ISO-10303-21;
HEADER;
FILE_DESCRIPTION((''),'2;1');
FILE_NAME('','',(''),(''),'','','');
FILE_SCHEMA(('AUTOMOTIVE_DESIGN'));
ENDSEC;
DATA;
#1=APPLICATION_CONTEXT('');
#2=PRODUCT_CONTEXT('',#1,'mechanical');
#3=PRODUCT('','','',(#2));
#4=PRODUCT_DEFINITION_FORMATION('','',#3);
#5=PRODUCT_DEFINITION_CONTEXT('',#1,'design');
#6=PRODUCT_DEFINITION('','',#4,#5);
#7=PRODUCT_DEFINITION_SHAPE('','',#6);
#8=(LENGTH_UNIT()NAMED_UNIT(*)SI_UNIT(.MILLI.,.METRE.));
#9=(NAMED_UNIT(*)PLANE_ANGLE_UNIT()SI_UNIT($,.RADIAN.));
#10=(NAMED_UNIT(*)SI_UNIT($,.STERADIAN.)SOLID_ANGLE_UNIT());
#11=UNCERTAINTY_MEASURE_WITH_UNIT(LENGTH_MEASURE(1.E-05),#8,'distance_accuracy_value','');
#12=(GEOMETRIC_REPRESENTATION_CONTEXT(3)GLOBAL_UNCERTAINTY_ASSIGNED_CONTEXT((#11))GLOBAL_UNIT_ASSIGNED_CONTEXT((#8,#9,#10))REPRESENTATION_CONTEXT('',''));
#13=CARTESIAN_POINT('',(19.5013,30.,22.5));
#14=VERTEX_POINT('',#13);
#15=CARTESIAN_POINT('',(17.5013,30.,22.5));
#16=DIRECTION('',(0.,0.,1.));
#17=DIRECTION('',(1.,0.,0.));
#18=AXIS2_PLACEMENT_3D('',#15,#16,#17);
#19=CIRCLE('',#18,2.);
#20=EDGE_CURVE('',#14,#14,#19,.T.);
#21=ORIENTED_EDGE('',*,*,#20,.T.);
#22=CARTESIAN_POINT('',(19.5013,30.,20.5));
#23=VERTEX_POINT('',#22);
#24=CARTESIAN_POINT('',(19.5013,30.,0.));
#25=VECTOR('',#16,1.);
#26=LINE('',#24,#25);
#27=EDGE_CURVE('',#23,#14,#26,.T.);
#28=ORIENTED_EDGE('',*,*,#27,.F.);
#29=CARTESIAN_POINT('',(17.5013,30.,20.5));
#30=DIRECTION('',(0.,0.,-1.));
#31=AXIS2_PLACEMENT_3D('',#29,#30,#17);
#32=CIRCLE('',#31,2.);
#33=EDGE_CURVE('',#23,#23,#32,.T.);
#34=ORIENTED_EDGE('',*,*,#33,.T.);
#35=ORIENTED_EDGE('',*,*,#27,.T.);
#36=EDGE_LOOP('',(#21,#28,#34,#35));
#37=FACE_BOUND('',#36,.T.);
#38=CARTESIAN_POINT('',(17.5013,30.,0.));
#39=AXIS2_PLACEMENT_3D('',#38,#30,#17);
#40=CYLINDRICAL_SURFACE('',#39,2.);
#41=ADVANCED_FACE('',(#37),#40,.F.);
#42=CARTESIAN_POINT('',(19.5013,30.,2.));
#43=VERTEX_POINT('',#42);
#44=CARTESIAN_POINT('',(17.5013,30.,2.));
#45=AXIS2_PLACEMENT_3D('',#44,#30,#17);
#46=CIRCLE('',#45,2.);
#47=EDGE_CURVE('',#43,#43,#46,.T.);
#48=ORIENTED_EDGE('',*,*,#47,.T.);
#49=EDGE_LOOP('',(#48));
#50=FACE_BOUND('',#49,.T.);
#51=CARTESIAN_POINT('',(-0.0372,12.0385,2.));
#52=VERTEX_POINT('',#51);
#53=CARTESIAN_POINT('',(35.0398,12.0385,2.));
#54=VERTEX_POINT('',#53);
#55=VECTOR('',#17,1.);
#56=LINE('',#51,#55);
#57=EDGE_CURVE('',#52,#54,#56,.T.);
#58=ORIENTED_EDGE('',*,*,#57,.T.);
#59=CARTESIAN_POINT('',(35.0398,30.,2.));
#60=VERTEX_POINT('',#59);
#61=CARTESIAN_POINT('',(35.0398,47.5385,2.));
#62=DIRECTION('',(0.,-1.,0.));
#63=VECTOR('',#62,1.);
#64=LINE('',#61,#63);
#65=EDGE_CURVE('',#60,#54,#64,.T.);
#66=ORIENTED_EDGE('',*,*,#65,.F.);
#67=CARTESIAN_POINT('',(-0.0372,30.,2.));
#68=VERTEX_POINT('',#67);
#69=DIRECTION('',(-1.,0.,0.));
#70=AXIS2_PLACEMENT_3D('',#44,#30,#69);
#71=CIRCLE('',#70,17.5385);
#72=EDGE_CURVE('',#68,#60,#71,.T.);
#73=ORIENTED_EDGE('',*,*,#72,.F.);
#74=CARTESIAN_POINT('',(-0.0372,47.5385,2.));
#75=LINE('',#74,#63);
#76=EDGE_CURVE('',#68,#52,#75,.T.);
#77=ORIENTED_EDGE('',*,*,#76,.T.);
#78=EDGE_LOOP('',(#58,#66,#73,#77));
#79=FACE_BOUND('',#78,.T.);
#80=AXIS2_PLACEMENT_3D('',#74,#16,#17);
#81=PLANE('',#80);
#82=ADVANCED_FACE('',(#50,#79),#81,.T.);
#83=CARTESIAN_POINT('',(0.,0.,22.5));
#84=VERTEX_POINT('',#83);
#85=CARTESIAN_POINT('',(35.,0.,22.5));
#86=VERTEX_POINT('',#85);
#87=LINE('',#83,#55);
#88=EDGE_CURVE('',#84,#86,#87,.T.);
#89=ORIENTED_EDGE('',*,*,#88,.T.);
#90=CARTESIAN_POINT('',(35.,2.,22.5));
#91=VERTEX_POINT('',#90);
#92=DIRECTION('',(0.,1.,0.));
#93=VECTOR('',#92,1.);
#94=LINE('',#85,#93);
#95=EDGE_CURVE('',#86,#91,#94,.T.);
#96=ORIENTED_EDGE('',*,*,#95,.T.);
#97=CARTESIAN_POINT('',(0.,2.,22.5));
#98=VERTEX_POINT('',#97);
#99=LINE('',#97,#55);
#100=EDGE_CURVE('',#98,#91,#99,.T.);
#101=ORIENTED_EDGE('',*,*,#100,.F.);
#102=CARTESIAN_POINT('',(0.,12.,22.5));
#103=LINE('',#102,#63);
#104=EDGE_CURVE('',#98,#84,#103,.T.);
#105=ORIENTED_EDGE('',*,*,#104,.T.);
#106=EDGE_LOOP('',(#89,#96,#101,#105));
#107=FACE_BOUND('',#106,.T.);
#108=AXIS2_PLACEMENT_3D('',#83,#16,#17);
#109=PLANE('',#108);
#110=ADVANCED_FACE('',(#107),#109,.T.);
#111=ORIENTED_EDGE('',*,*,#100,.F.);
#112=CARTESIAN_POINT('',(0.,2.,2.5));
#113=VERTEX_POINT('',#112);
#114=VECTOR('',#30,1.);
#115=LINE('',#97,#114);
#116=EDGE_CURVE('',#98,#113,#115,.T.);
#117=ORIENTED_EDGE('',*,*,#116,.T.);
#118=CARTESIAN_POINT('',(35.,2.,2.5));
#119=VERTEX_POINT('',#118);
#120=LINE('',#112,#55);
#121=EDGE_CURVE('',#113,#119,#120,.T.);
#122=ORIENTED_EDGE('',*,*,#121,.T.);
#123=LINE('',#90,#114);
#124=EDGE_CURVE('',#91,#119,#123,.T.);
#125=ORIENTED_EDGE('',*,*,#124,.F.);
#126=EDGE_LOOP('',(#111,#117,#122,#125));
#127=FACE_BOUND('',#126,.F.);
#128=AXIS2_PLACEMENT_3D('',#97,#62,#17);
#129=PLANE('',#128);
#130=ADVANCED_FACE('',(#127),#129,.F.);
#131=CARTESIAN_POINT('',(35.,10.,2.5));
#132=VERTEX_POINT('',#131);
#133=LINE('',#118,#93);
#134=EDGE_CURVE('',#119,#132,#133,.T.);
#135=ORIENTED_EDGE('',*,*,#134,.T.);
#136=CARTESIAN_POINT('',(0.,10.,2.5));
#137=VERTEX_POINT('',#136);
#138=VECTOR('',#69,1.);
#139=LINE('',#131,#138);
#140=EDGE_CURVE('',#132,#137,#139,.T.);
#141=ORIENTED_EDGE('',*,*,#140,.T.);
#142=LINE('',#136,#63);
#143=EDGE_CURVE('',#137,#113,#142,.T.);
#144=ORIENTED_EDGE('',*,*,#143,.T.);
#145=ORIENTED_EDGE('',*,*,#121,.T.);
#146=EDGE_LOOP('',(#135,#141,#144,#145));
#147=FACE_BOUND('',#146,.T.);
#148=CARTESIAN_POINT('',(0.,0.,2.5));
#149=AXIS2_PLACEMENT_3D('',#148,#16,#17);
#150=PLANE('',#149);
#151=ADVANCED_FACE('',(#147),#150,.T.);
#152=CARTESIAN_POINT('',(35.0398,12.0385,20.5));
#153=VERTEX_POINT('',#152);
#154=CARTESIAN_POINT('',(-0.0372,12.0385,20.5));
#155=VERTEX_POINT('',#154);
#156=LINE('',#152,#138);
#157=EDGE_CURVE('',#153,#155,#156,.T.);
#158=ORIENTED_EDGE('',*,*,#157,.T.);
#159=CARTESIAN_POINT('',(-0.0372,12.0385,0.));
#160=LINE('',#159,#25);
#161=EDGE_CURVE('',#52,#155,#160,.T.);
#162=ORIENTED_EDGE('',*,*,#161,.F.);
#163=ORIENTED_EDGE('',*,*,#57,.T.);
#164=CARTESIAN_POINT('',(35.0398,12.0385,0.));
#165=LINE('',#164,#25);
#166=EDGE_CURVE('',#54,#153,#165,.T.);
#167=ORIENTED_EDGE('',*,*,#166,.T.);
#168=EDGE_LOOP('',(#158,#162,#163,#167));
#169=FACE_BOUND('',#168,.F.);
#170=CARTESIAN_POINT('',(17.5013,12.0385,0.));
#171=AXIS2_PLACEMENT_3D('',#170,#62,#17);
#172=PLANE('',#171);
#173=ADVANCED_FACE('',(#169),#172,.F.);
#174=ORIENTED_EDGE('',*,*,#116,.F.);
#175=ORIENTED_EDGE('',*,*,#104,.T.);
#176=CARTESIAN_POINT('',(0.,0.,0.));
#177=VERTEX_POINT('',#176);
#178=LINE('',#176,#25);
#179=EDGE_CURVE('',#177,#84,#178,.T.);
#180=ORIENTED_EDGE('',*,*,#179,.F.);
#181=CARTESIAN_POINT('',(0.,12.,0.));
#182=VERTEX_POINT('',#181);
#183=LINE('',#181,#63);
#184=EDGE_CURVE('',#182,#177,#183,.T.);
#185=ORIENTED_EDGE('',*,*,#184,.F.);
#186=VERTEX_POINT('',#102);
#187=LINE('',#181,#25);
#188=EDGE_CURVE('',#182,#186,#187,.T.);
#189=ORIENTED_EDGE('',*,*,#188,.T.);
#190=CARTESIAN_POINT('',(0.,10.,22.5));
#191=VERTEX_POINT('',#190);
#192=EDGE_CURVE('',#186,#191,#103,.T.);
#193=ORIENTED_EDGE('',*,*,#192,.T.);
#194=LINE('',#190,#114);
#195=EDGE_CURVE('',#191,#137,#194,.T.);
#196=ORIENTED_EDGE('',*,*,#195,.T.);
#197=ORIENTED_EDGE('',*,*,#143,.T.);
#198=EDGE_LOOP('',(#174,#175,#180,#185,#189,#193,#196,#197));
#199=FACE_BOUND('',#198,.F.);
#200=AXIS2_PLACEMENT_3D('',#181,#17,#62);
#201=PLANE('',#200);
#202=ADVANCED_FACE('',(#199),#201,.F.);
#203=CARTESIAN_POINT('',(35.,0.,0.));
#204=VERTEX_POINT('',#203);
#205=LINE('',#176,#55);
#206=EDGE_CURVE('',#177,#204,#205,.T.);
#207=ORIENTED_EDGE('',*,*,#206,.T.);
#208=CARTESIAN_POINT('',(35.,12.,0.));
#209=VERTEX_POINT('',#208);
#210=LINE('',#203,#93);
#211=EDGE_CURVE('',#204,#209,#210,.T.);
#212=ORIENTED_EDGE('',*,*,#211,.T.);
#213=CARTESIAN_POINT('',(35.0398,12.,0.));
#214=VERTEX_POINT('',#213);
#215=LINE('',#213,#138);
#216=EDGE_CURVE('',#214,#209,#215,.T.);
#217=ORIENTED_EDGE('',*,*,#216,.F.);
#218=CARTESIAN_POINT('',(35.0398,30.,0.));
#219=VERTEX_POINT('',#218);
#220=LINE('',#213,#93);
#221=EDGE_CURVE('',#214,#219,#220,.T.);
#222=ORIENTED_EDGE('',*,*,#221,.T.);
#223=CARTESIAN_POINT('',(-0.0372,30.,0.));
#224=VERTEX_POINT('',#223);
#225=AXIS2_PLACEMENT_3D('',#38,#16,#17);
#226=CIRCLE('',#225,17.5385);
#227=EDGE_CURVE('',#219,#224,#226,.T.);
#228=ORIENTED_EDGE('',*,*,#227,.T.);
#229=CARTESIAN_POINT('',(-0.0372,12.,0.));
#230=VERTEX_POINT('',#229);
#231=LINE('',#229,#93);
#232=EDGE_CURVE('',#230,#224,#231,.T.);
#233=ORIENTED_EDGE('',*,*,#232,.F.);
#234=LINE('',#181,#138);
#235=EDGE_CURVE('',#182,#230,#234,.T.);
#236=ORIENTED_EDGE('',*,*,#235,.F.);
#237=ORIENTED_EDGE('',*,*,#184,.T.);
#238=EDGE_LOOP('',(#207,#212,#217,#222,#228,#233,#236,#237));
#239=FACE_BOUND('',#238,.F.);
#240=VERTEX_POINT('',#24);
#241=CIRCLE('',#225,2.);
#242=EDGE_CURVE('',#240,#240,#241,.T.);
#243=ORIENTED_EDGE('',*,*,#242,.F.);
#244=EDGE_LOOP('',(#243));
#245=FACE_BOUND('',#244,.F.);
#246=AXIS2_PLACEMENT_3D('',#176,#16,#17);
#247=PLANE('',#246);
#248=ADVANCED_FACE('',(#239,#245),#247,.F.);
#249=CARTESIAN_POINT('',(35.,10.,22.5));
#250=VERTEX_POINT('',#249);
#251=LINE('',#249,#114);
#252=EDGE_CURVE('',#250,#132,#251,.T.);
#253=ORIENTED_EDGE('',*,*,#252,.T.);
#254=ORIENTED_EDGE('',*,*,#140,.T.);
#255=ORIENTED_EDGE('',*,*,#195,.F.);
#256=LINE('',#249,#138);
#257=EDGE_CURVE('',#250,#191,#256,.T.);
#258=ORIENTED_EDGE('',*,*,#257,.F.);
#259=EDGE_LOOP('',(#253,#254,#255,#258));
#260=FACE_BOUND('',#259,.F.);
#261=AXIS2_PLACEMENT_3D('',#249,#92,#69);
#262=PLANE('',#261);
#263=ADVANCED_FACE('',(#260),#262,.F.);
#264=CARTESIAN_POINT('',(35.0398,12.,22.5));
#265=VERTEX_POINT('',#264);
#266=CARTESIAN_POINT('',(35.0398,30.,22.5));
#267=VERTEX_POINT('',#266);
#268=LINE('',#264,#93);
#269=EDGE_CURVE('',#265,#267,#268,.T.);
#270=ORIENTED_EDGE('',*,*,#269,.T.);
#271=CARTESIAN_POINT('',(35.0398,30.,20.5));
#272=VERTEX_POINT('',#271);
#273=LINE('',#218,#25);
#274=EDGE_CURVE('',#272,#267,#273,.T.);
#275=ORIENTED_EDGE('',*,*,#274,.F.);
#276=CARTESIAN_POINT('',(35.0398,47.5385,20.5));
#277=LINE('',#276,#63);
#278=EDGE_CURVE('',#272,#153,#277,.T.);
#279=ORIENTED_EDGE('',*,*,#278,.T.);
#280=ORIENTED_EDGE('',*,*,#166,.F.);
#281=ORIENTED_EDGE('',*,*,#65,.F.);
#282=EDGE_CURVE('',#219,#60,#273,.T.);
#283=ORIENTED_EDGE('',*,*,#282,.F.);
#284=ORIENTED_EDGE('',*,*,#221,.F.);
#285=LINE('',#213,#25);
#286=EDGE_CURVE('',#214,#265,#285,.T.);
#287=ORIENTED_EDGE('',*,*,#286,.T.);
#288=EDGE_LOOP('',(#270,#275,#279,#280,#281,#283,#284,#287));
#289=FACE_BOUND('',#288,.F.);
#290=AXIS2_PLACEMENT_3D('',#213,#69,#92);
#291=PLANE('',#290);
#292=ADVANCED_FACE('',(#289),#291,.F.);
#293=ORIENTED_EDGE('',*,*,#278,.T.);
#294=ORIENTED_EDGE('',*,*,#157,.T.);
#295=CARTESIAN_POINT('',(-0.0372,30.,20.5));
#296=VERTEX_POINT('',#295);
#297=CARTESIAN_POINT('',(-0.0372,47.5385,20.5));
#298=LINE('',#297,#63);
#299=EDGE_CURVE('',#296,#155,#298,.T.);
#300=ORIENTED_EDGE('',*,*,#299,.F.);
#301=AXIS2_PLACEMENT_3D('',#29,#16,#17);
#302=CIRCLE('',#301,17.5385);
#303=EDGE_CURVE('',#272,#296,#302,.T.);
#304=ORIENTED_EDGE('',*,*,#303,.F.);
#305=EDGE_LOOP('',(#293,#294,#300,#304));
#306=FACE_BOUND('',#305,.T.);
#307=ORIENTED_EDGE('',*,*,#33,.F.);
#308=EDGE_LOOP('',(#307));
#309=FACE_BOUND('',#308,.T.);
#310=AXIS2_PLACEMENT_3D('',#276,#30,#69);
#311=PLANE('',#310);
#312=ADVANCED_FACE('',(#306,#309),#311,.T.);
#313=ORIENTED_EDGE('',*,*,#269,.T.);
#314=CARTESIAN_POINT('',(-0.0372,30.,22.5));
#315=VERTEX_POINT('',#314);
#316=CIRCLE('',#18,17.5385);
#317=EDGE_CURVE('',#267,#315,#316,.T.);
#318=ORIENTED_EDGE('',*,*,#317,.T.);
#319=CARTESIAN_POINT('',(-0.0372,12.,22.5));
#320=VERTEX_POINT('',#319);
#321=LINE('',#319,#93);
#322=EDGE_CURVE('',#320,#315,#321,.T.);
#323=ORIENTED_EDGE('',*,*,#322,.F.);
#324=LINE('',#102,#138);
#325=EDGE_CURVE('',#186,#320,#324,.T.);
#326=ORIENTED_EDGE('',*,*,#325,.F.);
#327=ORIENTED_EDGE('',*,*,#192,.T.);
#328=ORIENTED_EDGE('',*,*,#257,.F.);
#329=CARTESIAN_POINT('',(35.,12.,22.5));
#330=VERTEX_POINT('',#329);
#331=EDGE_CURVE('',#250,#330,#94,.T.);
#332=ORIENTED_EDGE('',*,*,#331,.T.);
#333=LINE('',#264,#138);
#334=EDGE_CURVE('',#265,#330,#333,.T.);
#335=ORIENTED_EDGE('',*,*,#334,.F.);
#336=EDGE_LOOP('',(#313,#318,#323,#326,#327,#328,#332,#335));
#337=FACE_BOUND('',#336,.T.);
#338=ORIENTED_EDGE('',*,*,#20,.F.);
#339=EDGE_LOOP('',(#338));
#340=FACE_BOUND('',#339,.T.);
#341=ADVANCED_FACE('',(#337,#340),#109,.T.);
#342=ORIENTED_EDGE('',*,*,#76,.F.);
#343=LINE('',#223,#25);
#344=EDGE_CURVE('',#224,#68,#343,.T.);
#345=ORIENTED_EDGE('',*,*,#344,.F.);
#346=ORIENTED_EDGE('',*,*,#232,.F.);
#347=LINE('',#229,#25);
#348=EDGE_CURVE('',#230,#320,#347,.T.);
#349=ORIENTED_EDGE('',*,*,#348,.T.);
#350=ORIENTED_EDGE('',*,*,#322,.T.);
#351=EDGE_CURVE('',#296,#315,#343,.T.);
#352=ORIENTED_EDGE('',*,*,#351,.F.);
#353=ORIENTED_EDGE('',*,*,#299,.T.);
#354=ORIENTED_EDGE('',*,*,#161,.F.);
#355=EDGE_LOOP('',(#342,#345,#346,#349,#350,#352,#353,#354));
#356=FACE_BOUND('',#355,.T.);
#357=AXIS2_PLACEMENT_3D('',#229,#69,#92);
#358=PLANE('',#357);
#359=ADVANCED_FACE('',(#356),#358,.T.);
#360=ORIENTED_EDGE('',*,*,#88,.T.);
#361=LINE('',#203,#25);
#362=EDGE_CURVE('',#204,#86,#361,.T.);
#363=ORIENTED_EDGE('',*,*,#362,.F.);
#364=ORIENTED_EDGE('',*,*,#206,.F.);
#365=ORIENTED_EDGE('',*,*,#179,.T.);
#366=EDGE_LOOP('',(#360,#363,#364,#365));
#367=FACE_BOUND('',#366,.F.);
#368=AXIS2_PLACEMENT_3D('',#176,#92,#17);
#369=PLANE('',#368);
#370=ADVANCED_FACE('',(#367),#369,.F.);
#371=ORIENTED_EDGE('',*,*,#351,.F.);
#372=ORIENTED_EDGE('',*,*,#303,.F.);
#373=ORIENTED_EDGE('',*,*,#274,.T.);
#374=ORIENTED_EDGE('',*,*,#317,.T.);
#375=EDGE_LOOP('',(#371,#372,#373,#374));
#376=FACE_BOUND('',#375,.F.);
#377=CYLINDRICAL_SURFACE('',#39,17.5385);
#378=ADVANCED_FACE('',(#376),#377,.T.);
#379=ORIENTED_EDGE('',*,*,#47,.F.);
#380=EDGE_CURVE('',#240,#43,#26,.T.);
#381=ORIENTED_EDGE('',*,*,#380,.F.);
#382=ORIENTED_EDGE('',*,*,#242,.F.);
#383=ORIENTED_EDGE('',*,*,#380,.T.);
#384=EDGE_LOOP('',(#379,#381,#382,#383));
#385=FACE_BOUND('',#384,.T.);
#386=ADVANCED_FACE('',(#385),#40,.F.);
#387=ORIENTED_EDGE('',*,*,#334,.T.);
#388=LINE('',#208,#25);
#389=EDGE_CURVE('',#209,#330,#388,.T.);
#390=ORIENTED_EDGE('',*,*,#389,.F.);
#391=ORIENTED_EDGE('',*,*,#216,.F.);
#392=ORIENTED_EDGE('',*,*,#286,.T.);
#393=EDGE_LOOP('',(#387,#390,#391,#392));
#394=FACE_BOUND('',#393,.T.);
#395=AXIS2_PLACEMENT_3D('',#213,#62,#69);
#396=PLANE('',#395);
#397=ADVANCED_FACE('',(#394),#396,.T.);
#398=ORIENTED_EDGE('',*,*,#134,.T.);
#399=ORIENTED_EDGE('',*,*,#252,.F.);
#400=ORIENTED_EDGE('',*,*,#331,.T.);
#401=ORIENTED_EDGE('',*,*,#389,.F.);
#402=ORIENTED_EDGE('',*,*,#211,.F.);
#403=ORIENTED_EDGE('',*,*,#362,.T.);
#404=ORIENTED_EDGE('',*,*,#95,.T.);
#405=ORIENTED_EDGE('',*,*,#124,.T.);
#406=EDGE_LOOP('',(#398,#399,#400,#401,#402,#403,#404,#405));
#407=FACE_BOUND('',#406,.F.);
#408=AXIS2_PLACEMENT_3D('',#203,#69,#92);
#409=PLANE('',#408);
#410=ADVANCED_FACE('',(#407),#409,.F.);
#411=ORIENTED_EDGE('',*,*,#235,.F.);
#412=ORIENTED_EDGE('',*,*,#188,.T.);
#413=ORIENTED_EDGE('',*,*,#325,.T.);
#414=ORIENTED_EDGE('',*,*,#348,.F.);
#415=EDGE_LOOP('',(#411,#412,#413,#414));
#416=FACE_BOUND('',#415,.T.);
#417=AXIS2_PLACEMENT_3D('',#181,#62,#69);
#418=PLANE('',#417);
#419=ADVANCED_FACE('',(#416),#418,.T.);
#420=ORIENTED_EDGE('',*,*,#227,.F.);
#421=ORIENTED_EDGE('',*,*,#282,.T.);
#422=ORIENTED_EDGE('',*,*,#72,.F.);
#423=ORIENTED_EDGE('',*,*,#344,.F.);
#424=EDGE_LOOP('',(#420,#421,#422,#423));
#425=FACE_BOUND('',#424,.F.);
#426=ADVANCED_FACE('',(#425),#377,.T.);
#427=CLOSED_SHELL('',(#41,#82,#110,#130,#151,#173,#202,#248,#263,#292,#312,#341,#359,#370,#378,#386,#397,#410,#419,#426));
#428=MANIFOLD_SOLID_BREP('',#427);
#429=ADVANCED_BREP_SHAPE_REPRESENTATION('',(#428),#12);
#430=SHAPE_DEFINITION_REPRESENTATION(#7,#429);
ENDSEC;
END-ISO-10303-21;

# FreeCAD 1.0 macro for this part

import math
import FreeCAD as App
import Part
import Sketcher

doc = App.newDocument("Part")
body = doc.addObject("PartDesign::Body", "Body")

sketch1 = body.newObject("Sketcher::SketchObject", "Sketch")
sketch1.AttachmentSupport = (doc.getObject("XY_Plane"), [""])
sketch1.MapMode = "FlatFace"
sketch1.addGeometry([
    Part.LineSegment(App.Vector(0, 12, 0), App.Vector(0, 0, 0)),
    Part.LineSegment(App.Vector(0, 0, 0), App.Vector(35, 0, 0)),
    Part.LineSegment(App.Vector(35, 0, 0), App.Vector(35, 12, 0)),
    Part.LineSegment(App.Vector(35, 12, 0), App.Vector(35.04, 12, 0)),
    Part.LineSegment(App.Vector(35.04, 12, 0), App.Vector(35.04, 30, 0)),
    Part.ArcOfCircle(Part.Circle(App.Vector(17.501, 30, 0), App.Vector(0, 0, 1), 17.538), math.radians(0), math.radians(180)),
    Part.LineSegment(App.Vector(-0.037, 30, 0), App.Vector(-0.037, 12, 0)),
    Part.LineSegment(App.Vector(-0.037, 12, 0), App.Vector(0, 12, 0)),
    Part.Circle(App.Vector(17.501, 30, 0), App.Vector(0, 0, 1), 2),
], False)
sketch1.addConstraint([
    Sketcher.Constraint("Coincident", 0, 2, 1, 1),
    Sketcher.Constraint("Coincident", 1, 2, 2, 1),
    Sketcher.Constraint("Coincident", 2, 2, 3, 1),
    Sketcher.Constraint("Coincident", 3, 2, 4, 1),
    Sketcher.Constraint("Tangent", 4, 2, 5, 1),
    Sketcher.Constraint("Tangent", 5, 2, 6, 1),
    Sketcher.Constraint("Coincident", 6, 2, 7, 1),
    Sketcher.Constraint("Coincident", 7, 2, 0, 1),
    Sketcher.Constraint("Vertical", 0),
    Sketcher.Constraint("Horizontal", 1),
    Sketcher.Constraint("Vertical", 2),
    Sketcher.Constraint("Horizontal", 3),
    Sketcher.Constraint("Vertical", 4),
    Sketcher.Constraint("Vertical", 6),
    Sketcher.Constraint("Horizontal", 7),
    Sketcher.Constraint("Coincident", 0, 2, -1, 1),
    Sketcher.Constraint("Coincident", 8, 3, 5, 3),
    Sketcher.Constraint("Horizontal", 3, 2, 6, 2),
    Sketcher.Constraint("Diameter", 8, 4.0),
    Sketcher.Constraint("DistanceX", 1, 1, 1, 2, 35.0),
    Sketcher.Constraint("DistanceY", 0, 2, 0, 1, 12.0),
    Sketcher.Constraint("DistanceY", 4, 1, 4, 2, 18.0),
    Sketcher.Constraint("Radius", 5, 17.5385),
    Sketcher.Constraint("DistanceX", 3, 1, 3, 2, 0.0398),
])
pad1 = body.newObject("PartDesign::Pad", "Pad")
pad1.Profile = sketch1
pad1.Length = 22.5

sketch2 = body.newObject("Sketcher::SketchObject", "Sketch001")
sketch2.AttachmentSupport = (doc.getObject("XY_Plane"), [""])
sketch2.MapMode = "FlatFace"
sketch2.AttachmentOffset = App.Placement(App.Vector(0, 0, 22.5), App.Rotation())
sketch2.addGeometry([
    Part.LineSegment(App.Vector(0, 10, 0), App.Vector(0, 2, 0)),
    Part.LineSegment(App.Vector(0, 2, 0), App.Vector(35, 2, 0)),
    Part.LineSegment(App.Vector(35, 2, 0), App.Vector(35, 10, 0)),
    Part.LineSegment(App.Vector(35, 10, 0), App.Vector(0, 10, 0)),
], False)
sketch2.addConstraint([
    Sketcher.Constraint("Coincident", 0, 2, 1, 1),
    Sketcher.Constraint("Coincident", 1, 2, 2, 1),
    Sketcher.Constraint("Coincident", 2, 2, 3, 1),
    Sketcher.Constraint("Coincident", 3, 2, 0, 1),
    Sketcher.Constraint("Vertical", 0),
    Sketcher.Constraint("Horizontal", 1),
    Sketcher.Constraint("Vertical", 2),
    Sketcher.Constraint("Horizontal", 3),
    Sketcher.Constraint("PointOnObject", 0, 2, -2),
    Sketcher.Constraint("DistanceX", 1, 1, 1, 2, 35.0),
    Sketcher.Constraint("DistanceY", 0, 2, 0, 1, 8.0),
    Sketcher.Constraint("DistanceY", -1, 1, 0, 2, 2.0),
])
pocket1 = body.newObject("PartDesign::Pocket", "Pocket")
pocket1.Profile = sketch2
pocket1.Length = 20

sketch3 = body.newObject("Sketcher::SketchObject", "Sketch002")
sketch3.AttachmentSupport = (doc.getObject("XZ_Plane"), [""])
sketch3.MapMode = "FlatFace"
sketch3.AttachmentOffset = App.Placement(App.Vector(0, 0, -47.5385), App.Rotation())
sketch3.addGeometry([
    Part.LineSegment(App.Vector(0, 2, 0), App.Vector(35, 2, 0)),
    Part.LineSegment(App.Vector(35, 2, 0), App.Vector(35, 20, 0)),
    Part.LineSegment(App.Vector(35, 20, 0), App.Vector(0, 20, 0)),
    Part.LineSegment(App.Vector(0, 20, 0), App.Vector(0, 2, 0)),
], False)
sketch3.addConstraint([
    Sketcher.Constraint("Coincident", 0, 2, 1, 1),
    Sketcher.Constraint("Coincident", 1, 2, 2, 1),
    Sketcher.Constraint("Coincident", 2, 2, 3, 1),
    Sketcher.Constraint("Coincident", 3, 2, 0, 1),
    Sketcher.Constraint("Horizontal", 0),
    Sketcher.Constraint("Vertical", 1),
    Sketcher.Constraint("Horizontal", 2),
    Sketcher.Constraint("Vertical", 3),
    Sketcher.Constraint("DistanceY", 1, 1, 1, 2, 18.5),
    Sketcher.Constraint("DistanceY", -1, 1, 0, 2, 2.0),
    Sketcher.Constraint("DistanceX", 0, 1, 0, 2, 35.077),
    Sketcher.Constraint("DistanceX", -1, 1, 0, 2, 35.0398),
])
pocket2 = body.newObject("PartDesign::Pocket", "Pocket001")
pocket2.Profile = sketch3
pocket2.Length = 35.5
pocket2.Reversed = True

doc.recompute()
